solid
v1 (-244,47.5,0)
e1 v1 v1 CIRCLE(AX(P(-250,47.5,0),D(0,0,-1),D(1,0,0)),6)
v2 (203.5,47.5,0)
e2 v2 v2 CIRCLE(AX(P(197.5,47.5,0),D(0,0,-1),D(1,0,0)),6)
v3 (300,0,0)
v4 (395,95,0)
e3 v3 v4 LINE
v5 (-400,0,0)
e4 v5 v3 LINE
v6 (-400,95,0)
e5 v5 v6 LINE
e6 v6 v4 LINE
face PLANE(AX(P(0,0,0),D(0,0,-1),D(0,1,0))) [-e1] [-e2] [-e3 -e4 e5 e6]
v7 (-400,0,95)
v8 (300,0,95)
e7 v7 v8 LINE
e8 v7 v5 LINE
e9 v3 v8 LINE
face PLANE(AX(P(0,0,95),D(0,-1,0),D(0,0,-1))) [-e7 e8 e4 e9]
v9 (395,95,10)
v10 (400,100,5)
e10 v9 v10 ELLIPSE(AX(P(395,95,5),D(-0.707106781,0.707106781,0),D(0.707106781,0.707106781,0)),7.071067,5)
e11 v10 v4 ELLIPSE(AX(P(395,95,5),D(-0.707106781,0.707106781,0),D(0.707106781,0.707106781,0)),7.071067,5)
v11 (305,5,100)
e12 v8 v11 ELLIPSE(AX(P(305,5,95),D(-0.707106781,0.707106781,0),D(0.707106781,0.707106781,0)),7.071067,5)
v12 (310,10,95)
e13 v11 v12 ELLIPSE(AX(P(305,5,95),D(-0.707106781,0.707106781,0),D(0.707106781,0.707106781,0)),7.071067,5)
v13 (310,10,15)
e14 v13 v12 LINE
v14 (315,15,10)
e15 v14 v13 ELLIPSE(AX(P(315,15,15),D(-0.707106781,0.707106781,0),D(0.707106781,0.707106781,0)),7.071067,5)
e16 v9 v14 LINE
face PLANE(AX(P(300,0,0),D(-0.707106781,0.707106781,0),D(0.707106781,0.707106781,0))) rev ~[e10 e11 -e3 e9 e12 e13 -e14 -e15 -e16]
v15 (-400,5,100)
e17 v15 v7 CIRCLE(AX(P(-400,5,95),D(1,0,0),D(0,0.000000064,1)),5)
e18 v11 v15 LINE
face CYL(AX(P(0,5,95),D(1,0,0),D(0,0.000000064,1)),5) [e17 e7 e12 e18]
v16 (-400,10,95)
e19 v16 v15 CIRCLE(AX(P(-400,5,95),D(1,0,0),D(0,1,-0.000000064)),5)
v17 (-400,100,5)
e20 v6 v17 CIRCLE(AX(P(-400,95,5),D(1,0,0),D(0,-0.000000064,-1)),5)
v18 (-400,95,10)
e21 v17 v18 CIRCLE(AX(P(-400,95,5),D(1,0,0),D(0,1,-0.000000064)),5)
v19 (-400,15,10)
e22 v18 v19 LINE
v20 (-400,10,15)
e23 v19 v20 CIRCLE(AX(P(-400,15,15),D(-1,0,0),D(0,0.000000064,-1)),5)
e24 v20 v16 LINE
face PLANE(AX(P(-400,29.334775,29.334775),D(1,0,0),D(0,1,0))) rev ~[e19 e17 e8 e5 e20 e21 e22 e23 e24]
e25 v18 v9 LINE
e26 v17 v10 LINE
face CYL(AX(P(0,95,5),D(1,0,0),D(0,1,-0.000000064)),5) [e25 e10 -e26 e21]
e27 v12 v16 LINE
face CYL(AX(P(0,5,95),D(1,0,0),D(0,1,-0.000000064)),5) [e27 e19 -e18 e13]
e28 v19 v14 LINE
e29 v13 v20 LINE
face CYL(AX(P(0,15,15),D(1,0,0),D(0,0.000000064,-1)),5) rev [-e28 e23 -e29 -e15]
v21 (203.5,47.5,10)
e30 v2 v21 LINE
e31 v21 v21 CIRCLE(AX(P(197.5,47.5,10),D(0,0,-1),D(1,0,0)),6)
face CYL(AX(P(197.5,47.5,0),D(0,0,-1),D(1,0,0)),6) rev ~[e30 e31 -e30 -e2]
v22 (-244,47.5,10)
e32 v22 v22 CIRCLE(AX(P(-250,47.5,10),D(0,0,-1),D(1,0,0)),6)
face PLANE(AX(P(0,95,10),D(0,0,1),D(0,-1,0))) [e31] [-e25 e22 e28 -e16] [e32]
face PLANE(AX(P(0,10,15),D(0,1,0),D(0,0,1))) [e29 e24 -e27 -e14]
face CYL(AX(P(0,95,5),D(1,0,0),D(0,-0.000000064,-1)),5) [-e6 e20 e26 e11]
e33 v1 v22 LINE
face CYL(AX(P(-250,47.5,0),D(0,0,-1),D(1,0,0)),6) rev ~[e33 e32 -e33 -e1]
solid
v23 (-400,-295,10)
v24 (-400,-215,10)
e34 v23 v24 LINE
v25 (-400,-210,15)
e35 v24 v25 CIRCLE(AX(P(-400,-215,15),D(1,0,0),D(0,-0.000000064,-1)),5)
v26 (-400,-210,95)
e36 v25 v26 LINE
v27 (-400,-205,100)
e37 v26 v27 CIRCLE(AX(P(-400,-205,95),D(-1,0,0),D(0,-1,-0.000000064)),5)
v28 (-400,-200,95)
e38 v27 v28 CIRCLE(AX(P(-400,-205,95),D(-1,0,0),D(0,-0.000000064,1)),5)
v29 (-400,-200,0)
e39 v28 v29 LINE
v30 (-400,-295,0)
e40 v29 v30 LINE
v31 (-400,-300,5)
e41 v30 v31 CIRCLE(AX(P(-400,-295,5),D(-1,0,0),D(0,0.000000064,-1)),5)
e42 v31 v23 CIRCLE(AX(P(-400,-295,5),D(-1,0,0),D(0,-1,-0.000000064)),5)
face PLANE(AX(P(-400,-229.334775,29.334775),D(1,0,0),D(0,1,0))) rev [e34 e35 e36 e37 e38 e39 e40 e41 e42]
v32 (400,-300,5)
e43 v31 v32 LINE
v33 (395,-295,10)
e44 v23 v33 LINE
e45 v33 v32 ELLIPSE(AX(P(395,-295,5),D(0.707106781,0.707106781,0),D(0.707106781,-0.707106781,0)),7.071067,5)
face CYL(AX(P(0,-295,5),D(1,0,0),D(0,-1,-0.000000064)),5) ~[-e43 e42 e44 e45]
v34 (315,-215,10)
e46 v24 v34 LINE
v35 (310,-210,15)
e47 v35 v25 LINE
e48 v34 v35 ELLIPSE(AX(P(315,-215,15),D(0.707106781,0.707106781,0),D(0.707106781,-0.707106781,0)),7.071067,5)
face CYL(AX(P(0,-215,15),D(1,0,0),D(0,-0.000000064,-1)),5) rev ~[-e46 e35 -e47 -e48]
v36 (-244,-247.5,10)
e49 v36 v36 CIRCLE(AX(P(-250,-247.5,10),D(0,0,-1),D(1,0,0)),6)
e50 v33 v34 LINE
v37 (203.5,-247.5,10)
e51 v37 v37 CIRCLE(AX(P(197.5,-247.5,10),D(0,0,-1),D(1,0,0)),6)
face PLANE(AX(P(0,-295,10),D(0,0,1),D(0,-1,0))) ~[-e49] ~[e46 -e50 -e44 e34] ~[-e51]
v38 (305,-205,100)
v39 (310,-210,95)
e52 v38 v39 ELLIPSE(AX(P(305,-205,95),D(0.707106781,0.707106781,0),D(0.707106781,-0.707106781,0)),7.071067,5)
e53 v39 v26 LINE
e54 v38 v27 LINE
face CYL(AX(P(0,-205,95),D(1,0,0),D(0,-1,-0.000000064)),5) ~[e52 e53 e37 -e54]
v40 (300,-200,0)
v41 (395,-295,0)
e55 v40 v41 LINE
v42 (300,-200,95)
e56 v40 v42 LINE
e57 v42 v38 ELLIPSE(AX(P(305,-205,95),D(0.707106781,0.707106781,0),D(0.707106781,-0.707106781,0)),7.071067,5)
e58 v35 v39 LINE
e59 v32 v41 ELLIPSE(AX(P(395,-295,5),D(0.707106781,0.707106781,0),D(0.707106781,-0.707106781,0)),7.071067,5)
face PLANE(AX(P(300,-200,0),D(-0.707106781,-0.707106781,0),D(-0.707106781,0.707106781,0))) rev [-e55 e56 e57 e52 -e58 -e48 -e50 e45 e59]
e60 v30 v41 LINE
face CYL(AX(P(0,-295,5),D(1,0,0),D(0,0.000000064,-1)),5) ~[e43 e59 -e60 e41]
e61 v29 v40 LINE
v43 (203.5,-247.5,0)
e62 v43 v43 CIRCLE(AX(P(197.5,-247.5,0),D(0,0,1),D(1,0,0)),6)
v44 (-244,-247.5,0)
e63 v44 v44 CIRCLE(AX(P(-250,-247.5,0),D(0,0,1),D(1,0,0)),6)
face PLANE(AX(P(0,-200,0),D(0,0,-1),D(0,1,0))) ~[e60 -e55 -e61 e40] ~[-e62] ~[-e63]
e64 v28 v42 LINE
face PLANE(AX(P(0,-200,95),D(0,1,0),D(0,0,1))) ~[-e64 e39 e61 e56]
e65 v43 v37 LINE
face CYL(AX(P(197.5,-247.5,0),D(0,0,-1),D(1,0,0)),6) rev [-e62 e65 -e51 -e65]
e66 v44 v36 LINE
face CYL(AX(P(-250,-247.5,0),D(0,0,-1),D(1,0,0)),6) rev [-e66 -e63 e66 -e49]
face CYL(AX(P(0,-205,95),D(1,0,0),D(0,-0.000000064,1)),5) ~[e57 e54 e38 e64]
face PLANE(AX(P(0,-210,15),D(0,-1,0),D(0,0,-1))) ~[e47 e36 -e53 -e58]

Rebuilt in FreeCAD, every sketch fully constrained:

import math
import FreeCAD as App
import Part
import Sketcher

V = App.Vector
Q = App.Units.Quantity

doc = App.newDocument("Part")
params = doc.addObject("Spreadsheet::Sheet", "Params")
for row, (alias, value) in enumerate([
    ("sketch1_radius", "5 mm"),
    ("sketch1_width", "95 mm"),
    ("pad1_length", "800 mm"),
    ("sketch2_width", "100 mm"),
    ("sketch3_diameter", "12 mm"),
    ("sketch4_diameter", "12 mm"),
], start=1):
    params.set(f"A{row}", alias)
    params.set(f"B{row}", "=" + value)
    params.setAlias(f"B{row}", alias)

body = doc.addObject("PartDesign::Body", "Body")

# Sketch on YZ plane
sketch1 = doc.addObject("Sketcher::SketchObject", "Sketch")
body.addObject(sketch1)
sketch1.AttachmentSupport = (doc.YZ_Plane, [""])
sketch1.MapMode = "FlatFace"
sketch1.addGeometry(Part.ArcOfCircle(Part.Circle(V(5, 95, 0), V(0, 0, 1), 5), math.radians(89.999996), math.radians(180.000004)), False)
sketch1.addGeometry(Part.LineSegment(V(0, 95, 0), V(0, 0, 0)), False)
sketch1.addGeometry(Part.LineSegment(V(0, 0, 0), V(95, 0, 0)), False)
sketch1.addGeometry(Part.ArcOfCircle(Part.Circle(V(95, 5, 0), V(0, 0, 1), 5), math.radians(-90.000004), math.radians(0.000004)), False)
sketch1.addGeometry(Part.ArcOfCircle(Part.Circle(V(95, 5, 0), V(0, 0, 1), 5), math.radians(-0.000004), math.radians(90.000004)), False)
sketch1.addGeometry(Part.LineSegment(V(95, 10, 0), V(15, 10, 0)), False)
sketch1.addGeometry(Part.ArcOfCircle(Part.Circle(V(15, 15, 0), V(0, 0, 1), 5), math.radians(179.999996), math.radians(270.000004)), False)
sketch1.addGeometry(Part.LineSegment(V(10, 15, 0), V(10, 95, 0)), False)
sketch1.addGeometry(Part.ArcOfCircle(Part.Circle(V(5, 95, 0), V(0, 0, 1), 5), math.radians(-0.000004), math.radians(90.000004)), False)
sketch1.addConstraint(Sketcher.Constraint("Tangent", 0, 2, 1, 1))
sketch1.addConstraint(Sketcher.Constraint("Coincident", 1, 2, 2, 1))
sketch1.addConstraint(Sketcher.Constraint("Tangent", 2, 2, 3, 1))
sketch1.addConstraint(Sketcher.Constraint("Tangent", 3, 2, 4, 1))
sketch1.addConstraint(Sketcher.Constraint("Tangent", 4, 2, 5, 1))
sketch1.addConstraint(Sketcher.Constraint("Tangent", 5, 2, 6, 2))
sketch1.addConstraint(Sketcher.Constraint("Tangent", 6, 1, 7, 1))
sketch1.addConstraint(Sketcher.Constraint("Tangent", 7, 2, 8, 1))
sketch1.addConstraint(Sketcher.Constraint("Tangent", 8, 2, 0, 1))
sketch1.addConstraint(Sketcher.Constraint("Vertical", 1))
sketch1.addConstraint(Sketcher.Constraint("Horizontal", 2))
sketch1.addConstraint(Sketcher.Constraint("Horizontal", 5))
sketch1.addConstraint(Sketcher.Constraint("Vertical", 7))
sketch1.addConstraint(Sketcher.Constraint("Coincident", 1, 2, -1, 1))
sketch1.addConstraint(Sketcher.Constraint("Equal", 0, 3))
sketch1.addConstraint(Sketcher.Constraint("Equal", 3, 4))
sketch1.addConstraint(Sketcher.Constraint("Equal", 4, 6))
sketch1.addConstraint(Sketcher.Constraint("Equal", 6, 8))
sketch1.addConstraint(Sketcher.Constraint("Horizontal", 4, 3, 3, 2))
sketch1.addConstraint(Sketcher.Constraint("Vertical", 0, 3, 8, 2))
sketch1.addConstraint(Sketcher.Constraint("Equal", 2, 1))
sketch1.addConstraint(Sketcher.Constraint("Radius", 0, Q("5 mm")))
sketch1.addConstraint(Sketcher.Constraint("DistanceX", 2, 1, 2, 2, Q("95 mm")))
sketch1.setExpression("Constraints[21]", "Params.sketch1_radius")
sketch1.setExpression("Constraints[22]", "Params.sketch1_width")
pad1 = doc.addObject("PartDesign::Pad", "Pad")
body.addObject(pad1)
pad1.Profile = sketch1
pad1.setExpression("Length", "Params.pad1_length")
pad1.Midplane = True

# Sketch on XY plane
sketch2 = doc.addObject("Sketcher::SketchObject", "Sketch001")
body.addObject(sketch2)
sketch2.AttachmentSupport = (doc.XY_Plane, [""])
sketch2.MapMode = "FlatFace"
sketch2.addGeometry(Part.LineSegment(V(400, 0, 0), V(300, 0, 0)), False)
sketch2.addGeometry(Part.LineSegment(V(300, 0, 0), V(400, 100, 0)), False)
sketch2.addGeometry(Part.LineSegment(V(400, 100, 0), V(400, 0, 0)), False)
sketch2.addConstraint(Sketcher.Constraint("Coincident", 0, 2, 1, 1))
sketch2.addConstraint(Sketcher.Constraint("Coincident", 1, 2, 2, 1))
sketch2.addConstraint(Sketcher.Constraint("Coincident", 2, 2, 0, 1))
sketch2.addConstraint(Sketcher.Constraint("Horizontal", 0))
sketch2.addConstraint(Sketcher.Constraint("Vertical", 2))
sketch2.addConstraint(Sketcher.Constraint("PointOnObject", 0, 2, -1))
sketch2.addConstraint(Sketcher.Constraint("Equal", 0, 2))
sketch2.addConstraint(Sketcher.Constraint("DistanceX", 0, 2, 0, 1, Q("100 mm")))
sketch2.addConstraint(Sketcher.Constraint("DistanceX", -1, 1, 0, 2, Q("300 mm")))
sketch2.setExpression("Constraints[7]", "Params.sketch2_width")
pocket1 = doc.addObject("PartDesign::Pocket", "Pocket")
body.addObject(pocket1)
pocket1.Profile = sketch2
pocket1.Type = "ThroughAll"
pocket1.Reversed = True

# Sketch on XY plane
sketch3 = doc.addObject("Sketcher::SketchObject", "Sketch002")
body.addObject(sketch3)
sketch3.AttachmentSupport = (doc.XY_Plane, [""])
sketch3.MapMode = "FlatFace"
sketch3.addGeometry(Part.Circle(V(-250, 47.5, 0), V(0, 0, 1), 6), False)
sketch3.addGeometry(Part.Circle(V(197.5, 47.5, 0), V(0, 0, 1), 6), False)
sketch3.addConstraint(Sketcher.Constraint("Equal", 0, 1))
sketch3.addConstraint(Sketcher.Constraint("Horizontal", 0, 3, 1, 3))
sketch3.addConstraint(Sketcher.Constraint("Diameter", 0, Q("12 mm")))
sketch3.addConstraint(Sketcher.Constraint("DistanceX", 0, 3, -1, 1, Q("250 mm")))
sketch3.addConstraint(Sketcher.Constraint("DistanceY", -1, 1, 0, 3, Q("47.5 mm")))
sketch3.addConstraint(Sketcher.Constraint("DistanceX", -1, 1, 1, 3, Q("197.5 mm")))
sketch3.setExpression("Constraints[2]", "Params.sketch3_diameter")
pocket2 = doc.addObject("PartDesign::Pocket", "Pocket001")
body.addObject(pocket2)
pocket2.Profile = sketch3
pocket2.Type = "ThroughAll"
pocket2.Reversed = True
body2 = doc.addObject("PartDesign::Body", "Body001")
doc.recompute()

mirroring = doc.addObject("Part::Mirroring", "Mirroring")
mirroring.Source = body
mirroring.Base = V(0, -100, 0)
mirroring.Normal = V(0, -1, 0)
body2.BaseFeature = mirroring
doc.recompute()

# Sketch on XY plane
sketch4 = doc.addObject("Sketcher::SketchObject", "Sketch003")
body2.addObject(sketch4)
sketch4.AttachmentSupport = (doc.getObject("XY_Plane001"), [""])
sketch4.MapMode = "FlatFace"
sketch4.addGeometry(Part.Circle(V(-250, -247.5, 0), V(0, 0, 1), 6), False)
sketch4.addGeometry(Part.Circle(V(197.5, -247.5, 0), V(0, 0, 1), 6), False)
sketch4.addConstraint(Sketcher.Constraint("Equal", 0, 1))
sketch4.addConstraint(Sketcher.Constraint("Horizontal", 0, 3, 1, 3))
sketch4.addConstraint(Sketcher.Constraint("Diameter", 0, Q("12 mm")))
sketch4.addConstraint(Sketcher.Constraint("DistanceX", 0, 3, -1, 1, Q("250 mm")))
sketch4.addConstraint(Sketcher.Constraint("DistanceY", 0, 3, -1, 1, Q("247.5 mm")))
sketch4.addConstraint(Sketcher.Constraint("DistanceX", -1, 1, 1, 3, Q("197.5 mm")))
sketch4.setExpression("Constraints[2]", "Params.sketch4_diameter")
pocket3 = doc.addObject("PartDesign::Pocket", "Pocket002")
body2.addObject(pocket3)
pocket3.Profile = sketch4
pocket3.Type = "ThroughAll"
pocket3.Reversed = True
mirroring.Visibility = False

doc.recompute()
